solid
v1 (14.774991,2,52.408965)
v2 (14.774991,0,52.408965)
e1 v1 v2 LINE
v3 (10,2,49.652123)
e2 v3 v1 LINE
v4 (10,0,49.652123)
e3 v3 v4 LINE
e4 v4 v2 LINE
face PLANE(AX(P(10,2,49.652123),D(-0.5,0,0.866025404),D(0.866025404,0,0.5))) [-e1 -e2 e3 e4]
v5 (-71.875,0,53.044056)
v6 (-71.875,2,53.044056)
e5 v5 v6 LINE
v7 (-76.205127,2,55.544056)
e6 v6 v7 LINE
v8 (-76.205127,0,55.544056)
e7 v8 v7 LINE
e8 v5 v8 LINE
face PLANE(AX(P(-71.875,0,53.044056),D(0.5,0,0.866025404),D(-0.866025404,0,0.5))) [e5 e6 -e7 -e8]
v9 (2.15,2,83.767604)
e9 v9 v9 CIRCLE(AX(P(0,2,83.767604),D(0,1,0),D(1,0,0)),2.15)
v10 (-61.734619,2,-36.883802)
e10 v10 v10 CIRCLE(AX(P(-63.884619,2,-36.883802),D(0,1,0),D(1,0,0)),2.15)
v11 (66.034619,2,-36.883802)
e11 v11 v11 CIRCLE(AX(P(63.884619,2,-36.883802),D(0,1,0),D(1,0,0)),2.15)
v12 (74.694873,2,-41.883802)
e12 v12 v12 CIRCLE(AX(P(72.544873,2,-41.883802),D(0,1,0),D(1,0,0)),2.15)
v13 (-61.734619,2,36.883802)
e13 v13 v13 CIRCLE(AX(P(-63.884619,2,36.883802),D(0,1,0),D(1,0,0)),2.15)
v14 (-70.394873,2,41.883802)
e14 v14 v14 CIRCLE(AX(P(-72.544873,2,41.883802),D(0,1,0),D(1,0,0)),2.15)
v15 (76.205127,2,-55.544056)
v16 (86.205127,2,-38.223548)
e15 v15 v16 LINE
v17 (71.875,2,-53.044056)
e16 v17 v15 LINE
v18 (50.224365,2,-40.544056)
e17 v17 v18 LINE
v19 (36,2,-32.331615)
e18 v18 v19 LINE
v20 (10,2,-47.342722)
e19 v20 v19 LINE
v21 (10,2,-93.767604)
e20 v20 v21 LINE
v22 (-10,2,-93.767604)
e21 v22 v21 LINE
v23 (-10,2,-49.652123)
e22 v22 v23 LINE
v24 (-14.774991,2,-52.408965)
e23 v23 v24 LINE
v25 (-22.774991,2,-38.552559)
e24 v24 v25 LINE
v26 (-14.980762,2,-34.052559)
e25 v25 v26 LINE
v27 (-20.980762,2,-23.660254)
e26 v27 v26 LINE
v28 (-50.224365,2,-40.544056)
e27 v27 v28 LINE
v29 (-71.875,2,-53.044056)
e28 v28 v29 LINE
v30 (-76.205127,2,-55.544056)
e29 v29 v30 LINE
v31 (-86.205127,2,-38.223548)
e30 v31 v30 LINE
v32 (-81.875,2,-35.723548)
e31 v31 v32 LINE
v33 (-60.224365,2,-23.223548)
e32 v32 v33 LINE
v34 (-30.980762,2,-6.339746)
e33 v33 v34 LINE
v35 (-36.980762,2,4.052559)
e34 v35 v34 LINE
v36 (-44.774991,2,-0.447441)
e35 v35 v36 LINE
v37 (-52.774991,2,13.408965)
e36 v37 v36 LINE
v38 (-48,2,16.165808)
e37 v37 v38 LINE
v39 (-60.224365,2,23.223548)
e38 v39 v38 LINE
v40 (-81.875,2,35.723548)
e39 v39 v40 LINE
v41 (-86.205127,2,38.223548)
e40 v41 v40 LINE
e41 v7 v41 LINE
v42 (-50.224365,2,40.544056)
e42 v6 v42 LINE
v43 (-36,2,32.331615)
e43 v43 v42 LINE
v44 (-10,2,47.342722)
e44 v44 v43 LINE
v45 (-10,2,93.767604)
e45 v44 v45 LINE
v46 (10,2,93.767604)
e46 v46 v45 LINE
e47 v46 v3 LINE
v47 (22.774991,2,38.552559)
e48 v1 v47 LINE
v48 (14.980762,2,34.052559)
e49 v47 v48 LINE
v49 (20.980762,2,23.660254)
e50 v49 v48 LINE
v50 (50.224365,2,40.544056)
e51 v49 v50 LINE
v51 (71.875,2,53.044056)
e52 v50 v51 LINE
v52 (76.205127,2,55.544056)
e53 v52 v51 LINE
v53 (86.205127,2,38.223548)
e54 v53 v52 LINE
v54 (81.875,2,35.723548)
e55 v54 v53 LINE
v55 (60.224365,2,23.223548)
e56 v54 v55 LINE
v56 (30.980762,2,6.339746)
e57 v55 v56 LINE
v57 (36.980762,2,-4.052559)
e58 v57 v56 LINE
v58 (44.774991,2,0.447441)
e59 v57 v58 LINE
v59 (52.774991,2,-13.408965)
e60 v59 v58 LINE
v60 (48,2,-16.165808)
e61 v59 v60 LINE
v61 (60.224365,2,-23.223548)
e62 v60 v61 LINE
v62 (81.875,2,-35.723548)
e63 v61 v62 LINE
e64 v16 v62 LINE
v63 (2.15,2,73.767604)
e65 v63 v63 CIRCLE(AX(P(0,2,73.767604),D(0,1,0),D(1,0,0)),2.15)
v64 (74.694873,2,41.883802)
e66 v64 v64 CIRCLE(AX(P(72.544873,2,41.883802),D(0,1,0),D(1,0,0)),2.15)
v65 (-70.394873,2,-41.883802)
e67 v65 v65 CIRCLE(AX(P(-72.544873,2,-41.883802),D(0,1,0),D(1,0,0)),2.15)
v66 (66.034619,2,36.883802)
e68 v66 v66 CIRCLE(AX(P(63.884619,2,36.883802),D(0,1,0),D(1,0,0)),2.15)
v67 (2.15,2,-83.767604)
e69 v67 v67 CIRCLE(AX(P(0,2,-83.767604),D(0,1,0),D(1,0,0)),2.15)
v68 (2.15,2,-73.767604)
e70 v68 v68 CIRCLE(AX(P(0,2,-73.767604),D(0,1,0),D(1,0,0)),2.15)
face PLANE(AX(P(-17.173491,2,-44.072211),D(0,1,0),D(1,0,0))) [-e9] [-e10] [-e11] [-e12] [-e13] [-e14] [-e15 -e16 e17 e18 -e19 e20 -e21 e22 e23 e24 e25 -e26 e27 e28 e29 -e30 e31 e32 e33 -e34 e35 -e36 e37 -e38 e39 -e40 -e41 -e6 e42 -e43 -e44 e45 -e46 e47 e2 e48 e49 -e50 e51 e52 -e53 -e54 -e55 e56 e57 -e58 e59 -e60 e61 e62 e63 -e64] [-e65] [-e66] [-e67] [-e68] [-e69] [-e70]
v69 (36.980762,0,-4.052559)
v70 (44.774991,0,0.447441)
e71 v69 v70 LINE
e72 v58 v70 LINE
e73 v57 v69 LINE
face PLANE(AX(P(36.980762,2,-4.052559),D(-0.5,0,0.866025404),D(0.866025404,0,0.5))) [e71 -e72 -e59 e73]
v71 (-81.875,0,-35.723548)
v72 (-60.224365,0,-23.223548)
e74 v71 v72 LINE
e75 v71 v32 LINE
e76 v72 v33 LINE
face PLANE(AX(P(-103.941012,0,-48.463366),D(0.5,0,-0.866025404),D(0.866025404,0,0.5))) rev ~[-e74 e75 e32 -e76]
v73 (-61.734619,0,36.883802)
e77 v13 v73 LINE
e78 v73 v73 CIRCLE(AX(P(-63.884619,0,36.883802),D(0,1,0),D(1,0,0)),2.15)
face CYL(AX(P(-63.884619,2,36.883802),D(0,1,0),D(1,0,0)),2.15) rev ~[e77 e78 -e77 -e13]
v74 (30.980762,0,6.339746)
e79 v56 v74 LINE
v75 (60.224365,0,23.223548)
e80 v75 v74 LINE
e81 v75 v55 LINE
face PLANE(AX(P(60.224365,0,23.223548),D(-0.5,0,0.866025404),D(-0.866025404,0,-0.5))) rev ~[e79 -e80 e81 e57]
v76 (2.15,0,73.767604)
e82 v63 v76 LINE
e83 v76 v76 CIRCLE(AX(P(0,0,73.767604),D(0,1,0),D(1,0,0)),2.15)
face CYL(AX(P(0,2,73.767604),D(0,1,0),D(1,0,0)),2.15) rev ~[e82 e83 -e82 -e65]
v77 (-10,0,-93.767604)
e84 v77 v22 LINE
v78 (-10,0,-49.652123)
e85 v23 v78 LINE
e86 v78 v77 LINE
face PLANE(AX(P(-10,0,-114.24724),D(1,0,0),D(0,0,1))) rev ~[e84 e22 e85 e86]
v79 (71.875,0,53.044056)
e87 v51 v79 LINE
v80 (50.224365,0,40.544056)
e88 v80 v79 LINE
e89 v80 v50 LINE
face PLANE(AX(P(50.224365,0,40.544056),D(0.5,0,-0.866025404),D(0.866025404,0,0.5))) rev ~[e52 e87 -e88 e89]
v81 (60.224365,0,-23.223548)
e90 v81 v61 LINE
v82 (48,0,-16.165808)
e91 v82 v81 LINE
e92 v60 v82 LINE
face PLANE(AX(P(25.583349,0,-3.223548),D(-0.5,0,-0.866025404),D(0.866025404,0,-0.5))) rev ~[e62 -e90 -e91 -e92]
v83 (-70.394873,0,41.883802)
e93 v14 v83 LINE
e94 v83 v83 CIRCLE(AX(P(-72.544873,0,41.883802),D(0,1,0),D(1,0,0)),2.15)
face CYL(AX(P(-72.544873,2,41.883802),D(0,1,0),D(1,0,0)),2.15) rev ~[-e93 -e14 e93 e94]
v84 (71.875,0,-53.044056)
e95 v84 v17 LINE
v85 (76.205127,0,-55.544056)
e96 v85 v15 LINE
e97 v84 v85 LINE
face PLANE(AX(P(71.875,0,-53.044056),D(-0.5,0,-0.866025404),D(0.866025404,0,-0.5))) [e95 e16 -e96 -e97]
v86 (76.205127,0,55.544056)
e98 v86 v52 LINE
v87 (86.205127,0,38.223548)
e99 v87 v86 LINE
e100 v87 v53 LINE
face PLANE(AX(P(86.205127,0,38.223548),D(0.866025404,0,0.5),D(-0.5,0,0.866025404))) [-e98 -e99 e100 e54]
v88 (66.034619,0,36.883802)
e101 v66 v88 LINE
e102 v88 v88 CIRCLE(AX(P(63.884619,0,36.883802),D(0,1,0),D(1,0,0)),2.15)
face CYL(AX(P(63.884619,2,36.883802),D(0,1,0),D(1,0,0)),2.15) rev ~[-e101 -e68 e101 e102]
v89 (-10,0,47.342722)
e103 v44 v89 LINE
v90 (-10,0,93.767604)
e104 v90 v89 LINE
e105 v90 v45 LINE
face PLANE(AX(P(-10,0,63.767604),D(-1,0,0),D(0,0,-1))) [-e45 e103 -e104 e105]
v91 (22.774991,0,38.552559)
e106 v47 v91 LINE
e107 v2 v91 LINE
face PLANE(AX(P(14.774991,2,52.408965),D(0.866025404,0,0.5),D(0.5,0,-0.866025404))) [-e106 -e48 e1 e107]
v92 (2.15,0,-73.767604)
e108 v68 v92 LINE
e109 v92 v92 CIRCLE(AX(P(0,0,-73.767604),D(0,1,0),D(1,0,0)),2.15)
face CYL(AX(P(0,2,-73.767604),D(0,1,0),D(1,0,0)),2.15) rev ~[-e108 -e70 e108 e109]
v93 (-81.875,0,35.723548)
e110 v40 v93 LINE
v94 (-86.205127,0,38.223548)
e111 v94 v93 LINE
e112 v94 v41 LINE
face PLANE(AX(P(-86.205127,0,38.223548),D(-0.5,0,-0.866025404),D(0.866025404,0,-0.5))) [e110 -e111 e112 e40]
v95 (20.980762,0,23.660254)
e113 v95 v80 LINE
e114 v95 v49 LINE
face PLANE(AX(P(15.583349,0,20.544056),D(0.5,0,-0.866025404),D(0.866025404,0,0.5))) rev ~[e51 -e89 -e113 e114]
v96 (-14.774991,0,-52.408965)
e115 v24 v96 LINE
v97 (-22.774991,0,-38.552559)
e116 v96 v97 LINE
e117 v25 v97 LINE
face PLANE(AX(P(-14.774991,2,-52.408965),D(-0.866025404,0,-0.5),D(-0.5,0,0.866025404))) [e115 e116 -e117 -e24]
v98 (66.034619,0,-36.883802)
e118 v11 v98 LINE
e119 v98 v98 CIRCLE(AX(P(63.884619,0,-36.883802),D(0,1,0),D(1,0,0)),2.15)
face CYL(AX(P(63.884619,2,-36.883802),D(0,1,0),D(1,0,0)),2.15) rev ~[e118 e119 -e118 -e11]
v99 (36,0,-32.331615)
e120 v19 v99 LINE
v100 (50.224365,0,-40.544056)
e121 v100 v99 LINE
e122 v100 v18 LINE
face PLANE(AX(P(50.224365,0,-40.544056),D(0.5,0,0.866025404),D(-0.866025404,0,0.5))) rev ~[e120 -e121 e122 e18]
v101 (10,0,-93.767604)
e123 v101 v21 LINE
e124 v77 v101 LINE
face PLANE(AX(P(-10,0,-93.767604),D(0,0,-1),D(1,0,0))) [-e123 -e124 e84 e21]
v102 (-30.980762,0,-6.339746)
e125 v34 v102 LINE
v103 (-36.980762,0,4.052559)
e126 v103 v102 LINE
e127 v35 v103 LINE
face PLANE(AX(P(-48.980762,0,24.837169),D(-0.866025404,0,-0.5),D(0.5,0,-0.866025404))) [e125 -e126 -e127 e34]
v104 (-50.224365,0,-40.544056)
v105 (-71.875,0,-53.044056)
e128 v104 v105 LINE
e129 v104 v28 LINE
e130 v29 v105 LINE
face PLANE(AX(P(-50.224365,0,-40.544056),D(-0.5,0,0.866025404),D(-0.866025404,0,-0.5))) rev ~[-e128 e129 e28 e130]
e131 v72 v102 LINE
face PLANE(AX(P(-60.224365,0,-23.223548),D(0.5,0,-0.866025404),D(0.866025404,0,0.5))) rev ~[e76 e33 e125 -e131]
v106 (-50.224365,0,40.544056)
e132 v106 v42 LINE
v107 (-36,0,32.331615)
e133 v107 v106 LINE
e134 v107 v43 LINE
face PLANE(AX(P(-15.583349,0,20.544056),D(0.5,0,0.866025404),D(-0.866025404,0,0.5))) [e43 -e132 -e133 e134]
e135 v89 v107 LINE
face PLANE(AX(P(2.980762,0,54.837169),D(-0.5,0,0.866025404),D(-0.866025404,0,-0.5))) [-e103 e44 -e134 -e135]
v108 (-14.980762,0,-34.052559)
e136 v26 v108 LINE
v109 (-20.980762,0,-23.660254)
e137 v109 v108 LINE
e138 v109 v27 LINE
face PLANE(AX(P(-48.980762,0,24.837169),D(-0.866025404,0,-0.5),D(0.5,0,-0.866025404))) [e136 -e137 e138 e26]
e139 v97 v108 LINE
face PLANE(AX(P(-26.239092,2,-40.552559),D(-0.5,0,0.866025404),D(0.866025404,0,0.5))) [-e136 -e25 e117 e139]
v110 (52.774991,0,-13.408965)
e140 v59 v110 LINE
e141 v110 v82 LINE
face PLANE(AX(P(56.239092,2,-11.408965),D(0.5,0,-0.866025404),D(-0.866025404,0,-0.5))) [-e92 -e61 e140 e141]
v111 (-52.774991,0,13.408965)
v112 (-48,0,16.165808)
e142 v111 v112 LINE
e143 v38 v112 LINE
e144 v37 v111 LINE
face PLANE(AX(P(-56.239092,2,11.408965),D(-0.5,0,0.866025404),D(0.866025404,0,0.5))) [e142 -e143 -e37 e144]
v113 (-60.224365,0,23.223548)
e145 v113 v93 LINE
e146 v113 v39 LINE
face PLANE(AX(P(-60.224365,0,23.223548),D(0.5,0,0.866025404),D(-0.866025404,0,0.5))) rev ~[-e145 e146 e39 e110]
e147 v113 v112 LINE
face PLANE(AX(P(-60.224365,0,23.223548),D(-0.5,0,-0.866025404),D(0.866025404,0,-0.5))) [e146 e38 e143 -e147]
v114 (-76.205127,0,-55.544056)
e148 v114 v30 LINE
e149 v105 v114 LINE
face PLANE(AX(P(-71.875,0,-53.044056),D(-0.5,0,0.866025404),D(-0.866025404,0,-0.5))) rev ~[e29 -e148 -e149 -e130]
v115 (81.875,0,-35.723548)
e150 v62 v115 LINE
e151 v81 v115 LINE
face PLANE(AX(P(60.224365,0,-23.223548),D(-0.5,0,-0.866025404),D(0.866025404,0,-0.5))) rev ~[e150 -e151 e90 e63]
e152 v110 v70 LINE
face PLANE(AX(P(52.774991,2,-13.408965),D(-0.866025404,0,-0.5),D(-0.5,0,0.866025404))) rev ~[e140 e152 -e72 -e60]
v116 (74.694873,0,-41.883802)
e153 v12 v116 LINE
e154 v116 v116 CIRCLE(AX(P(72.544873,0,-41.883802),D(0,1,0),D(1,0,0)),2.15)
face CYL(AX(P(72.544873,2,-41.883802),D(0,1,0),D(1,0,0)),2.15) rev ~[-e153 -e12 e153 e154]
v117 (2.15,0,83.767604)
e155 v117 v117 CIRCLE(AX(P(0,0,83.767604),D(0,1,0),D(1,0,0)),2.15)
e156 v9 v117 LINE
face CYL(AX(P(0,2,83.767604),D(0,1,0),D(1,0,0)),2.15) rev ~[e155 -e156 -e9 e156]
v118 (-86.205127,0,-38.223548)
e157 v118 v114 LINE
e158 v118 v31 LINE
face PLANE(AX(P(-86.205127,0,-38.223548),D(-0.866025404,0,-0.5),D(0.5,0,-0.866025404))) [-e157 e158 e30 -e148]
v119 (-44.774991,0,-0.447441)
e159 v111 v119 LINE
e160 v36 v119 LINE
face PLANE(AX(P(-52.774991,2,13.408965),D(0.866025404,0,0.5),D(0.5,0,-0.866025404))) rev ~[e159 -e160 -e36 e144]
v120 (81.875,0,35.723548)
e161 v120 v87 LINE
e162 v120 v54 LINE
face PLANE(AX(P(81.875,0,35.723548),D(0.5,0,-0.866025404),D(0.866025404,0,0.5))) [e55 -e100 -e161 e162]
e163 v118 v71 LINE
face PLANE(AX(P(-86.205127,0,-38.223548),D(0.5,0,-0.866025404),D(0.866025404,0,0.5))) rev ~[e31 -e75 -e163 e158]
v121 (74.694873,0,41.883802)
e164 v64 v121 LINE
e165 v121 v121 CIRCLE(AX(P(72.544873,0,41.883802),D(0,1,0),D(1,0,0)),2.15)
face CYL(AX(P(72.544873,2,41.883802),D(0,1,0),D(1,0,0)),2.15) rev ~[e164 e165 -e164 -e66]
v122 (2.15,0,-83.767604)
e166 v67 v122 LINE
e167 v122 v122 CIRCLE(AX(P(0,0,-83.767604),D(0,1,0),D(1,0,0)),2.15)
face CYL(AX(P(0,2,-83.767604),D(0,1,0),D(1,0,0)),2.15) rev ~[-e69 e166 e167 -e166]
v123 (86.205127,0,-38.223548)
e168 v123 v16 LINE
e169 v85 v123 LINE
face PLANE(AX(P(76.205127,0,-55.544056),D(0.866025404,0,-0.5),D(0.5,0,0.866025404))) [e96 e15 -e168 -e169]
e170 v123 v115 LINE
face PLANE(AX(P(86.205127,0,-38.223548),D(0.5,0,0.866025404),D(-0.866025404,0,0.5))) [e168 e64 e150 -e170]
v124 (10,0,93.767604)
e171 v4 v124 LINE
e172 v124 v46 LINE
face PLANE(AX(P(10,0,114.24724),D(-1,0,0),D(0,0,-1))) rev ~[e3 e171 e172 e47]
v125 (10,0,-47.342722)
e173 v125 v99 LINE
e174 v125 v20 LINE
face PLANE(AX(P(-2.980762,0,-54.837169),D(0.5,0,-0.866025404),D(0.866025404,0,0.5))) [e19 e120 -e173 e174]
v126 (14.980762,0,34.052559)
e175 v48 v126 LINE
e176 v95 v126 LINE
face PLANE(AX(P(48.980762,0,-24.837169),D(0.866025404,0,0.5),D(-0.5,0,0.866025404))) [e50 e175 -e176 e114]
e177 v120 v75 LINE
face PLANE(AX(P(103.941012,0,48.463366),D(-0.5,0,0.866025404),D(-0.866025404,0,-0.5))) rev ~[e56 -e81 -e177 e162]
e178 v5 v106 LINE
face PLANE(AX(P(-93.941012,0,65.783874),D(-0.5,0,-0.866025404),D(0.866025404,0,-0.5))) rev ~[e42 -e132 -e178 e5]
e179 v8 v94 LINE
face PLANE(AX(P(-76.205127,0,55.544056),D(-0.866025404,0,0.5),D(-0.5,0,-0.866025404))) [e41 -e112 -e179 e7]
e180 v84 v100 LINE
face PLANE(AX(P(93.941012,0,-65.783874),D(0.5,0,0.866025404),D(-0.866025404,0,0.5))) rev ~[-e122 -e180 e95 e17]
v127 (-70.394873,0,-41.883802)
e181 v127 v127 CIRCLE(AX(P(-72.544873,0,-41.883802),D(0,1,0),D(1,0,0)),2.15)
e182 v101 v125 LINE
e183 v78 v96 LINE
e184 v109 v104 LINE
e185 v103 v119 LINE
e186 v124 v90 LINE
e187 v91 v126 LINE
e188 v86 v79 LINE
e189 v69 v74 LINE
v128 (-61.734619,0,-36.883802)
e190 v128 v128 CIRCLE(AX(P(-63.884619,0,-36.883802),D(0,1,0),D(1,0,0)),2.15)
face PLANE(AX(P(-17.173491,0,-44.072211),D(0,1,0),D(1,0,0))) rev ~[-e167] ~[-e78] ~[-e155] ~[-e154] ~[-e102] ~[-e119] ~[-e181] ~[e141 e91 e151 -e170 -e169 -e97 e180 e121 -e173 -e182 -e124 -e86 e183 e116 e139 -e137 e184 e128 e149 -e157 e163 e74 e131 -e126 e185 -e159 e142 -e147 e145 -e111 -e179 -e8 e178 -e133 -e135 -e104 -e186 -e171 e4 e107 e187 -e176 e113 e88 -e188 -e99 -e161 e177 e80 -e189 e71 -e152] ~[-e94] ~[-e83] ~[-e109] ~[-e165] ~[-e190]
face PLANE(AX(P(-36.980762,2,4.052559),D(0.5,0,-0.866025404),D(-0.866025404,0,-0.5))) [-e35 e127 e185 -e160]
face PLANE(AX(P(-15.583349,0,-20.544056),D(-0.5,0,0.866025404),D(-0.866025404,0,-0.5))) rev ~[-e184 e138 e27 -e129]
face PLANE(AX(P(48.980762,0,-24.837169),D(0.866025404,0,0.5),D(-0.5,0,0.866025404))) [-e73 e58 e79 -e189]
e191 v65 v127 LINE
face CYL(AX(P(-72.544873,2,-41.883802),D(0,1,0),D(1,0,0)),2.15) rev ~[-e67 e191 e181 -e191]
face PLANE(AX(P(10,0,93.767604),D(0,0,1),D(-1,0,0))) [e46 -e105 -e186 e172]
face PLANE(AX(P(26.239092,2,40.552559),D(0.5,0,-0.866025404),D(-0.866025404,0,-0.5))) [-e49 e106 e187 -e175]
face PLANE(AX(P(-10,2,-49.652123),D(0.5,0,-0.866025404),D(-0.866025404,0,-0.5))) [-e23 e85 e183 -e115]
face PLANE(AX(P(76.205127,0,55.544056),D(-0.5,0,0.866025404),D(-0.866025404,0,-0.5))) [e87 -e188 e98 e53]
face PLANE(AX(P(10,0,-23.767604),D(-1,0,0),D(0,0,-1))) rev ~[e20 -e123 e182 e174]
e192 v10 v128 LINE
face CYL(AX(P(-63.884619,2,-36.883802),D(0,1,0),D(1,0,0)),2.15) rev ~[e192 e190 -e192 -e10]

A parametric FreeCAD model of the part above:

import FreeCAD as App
import Part
import Sketcher

V = App.Vector
Q = App.Units.Quantity

doc = App.newDocument("Part")
body = doc.addObject("PartDesign::Body", "Body")

# Sketch on XZ plane
sketch1 = doc.addObject("Sketcher::SketchObject", "Sketch")
body.addObject(sketch1)
sketch1.AttachmentSupport = (doc.XZ_Plane, [""])
sketch1.MapMode = "FlatFace"
sketch1.addGeometry([
    Part.LineSegment(V(102, 0, 0), V(51, -89, 0)),  # 0
    Part.LineSegment(V(51, -89, 0), V(-51, -89, 0)),  # 1
    Part.LineSegment(V(-51, -89, 0), V(-102, 0, 0)),  # 2
    Part.LineSegment(V(-102, 0, 0), V(-51, 89, 0)),  # 3
    Part.LineSegment(V(-51, 89, 0), V(51, 89, 0)),  # 4
    Part.LineSegment(V(51, 89, 0), V(102, 0, 0)),  # 5
    Part.LineSegment(V(-37, -64, 0), V(-10, -64, 0)),  # 6
    Part.LineSegment(V(-10, -64, 0), V(-10, -46, 0)),  # 7
    Part.LineSegment(V(-10, -46, 0), V(-30, -46, 0)),  # 8
    Part.LineSegment(V(-30, -46, 0), V(-30, 46, 0)),  # 9
    Part.LineSegment(V(-30, 46, 0), V(-10, 46, 0)),  # 10
    Part.LineSegment(V(-10, 46, 0), V(-10, 64, 0)),  # 11
    Part.LineSegment(V(-10, 64, 0), V(-37, 64, 0)),  # 12
    Part.LineSegment(V(-37, 64, 0), V(-74, 0, 0)),  # 13
    Part.LineSegment(V(-74, 0, 0), V(-37, -64, 0)),  # 14
    Part.LineSegment(V(37, -64, 0), V(74, 0, 0)),  # 15
    Part.LineSegment(V(74, 0, 0), V(37, 64, 0)),  # 16
    Part.LineSegment(V(37, 64, 0), V(10, 64, 0)),  # 17
    Part.LineSegment(V(10, 64, 0), V(10, 46, 0)),  # 18
    Part.LineSegment(V(10, 46, 0), V(30, 46, 0)),  # 19
    Part.LineSegment(V(30, 46, 0), V(30, -46, 0)),  # 20
    Part.LineSegment(V(30, -46, 0), V(10, -46, 0)),  # 21
    Part.LineSegment(V(10, -46, 0), V(10, -64, 0)),  # 22
    Part.LineSegment(V(10, -64, 0), V(37, -64, 0)),  # 23
], False)
sketch1.addConstraint([
    Sketcher.Constraint("Coincident", 0, 2, 1, 1),
    Sketcher.Constraint("Coincident", 1, 2, 2, 1),
    Sketcher.Constraint("Coincident", 2, 2, 3, 1),
    Sketcher.Constraint("Coincident", 3, 2, 4, 1),
    Sketcher.Constraint("Coincident", 4, 2, 5, 1),
    Sketcher.Constraint("Coincident", 5, 2, 0, 1),
    Sketcher.Constraint("Coincident", 6, 2, 7, 1),
    Sketcher.Constraint("Coincident", 7, 2, 8, 1),
    Sketcher.Constraint("Coincident", 8, 2, 9, 1),
    Sketcher.Constraint("Coincident", 9, 2, 10, 1),
    Sketcher.Constraint("Coincident", 10, 2, 11, 1),
    Sketcher.Constraint("Coincident", 11, 2, 12, 1),
    Sketcher.Constraint("Coincident", 12, 2, 13, 1),
    Sketcher.Constraint("Coincident", 13, 2, 14, 1),
    Sketcher.Constraint("Coincident", 14, 2, 6, 1),
    Sketcher.Constraint("Coincident", 15, 2, 16, 1),
    Sketcher.Constraint("Coincident", 16, 2, 17, 1),
    Sketcher.Constraint("Coincident", 17, 2, 18, 1),
    Sketcher.Constraint("Coincident", 18, 2, 19, 1),
    Sketcher.Constraint("Coincident", 19, 2, 20, 1),
    Sketcher.Constraint("Coincident", 20, 2, 21, 1),
    Sketcher.Constraint("Coincident", 21, 2, 22, 1),
    Sketcher.Constraint("Coincident", 22, 2, 23, 1),
    Sketcher.Constraint("Coincident", 23, 2, 15, 1),
    Sketcher.Constraint("Horizontal", 1),
    Sketcher.Constraint("Horizontal", 4),
    Sketcher.Constraint("Horizontal", 6),
    Sketcher.Constraint("Vertical", 7),
    Sketcher.Constraint("Horizontal", 8),
    Sketcher.Constraint("Vertical", 9),
    Sketcher.Constraint("Horizontal", 10),
    Sketcher.Constraint("Vertical", 11),
    Sketcher.Constraint("Horizontal", 12),
    Sketcher.Constraint("Horizontal", 17),
    Sketcher.Constraint("Vertical", 18),
    Sketcher.Constraint("Horizontal", 19),
    Sketcher.Constraint("Vertical", 20),
    Sketcher.Constraint("Horizontal", 21),
    Sketcher.Constraint("Vertical", 22),
    Sketcher.Constraint("Horizontal", 23),
    Sketcher.Constraint("Symmetric", 0, 2, 3, 2, -1, 1),
    Sketcher.Constraint("Symmetric", 2, 2, 5, 2, -1, 1),
    Sketcher.Constraint("Symmetric", 13, 2, 15, 2, -1, 1),
    Sketcher.Constraint("Symmetric", 14, 2, 16, 2, -1, 1),
    Sketcher.Constraint("Symmetric", 7, 2, 18, 2, -1, 1),
    Sketcher.Constraint("Symmetric", 9, 2, 20, 2, -1, 1),
    Sketcher.Constraint("Symmetric", 11, 2, 22, 2, -1, 1),
    Sketcher.Constraint("Symmetric", 12, 2, 16, 2, -2),
    Sketcher.Constraint("Symmetric", 10, 2, 18, 2, -2),
    Sketcher.Constraint("PointOnObject", 2, 2, -1),
    Sketcher.Constraint("PointOnObject", 13, 2, -1),
    Sketcher.Constraint("Parallel", 2, 5),
    Sketcher.Constraint("Parallel", 3, 13),
    Sketcher.Constraint("Parallel", 5, 14),
    Sketcher.Constraint("Parallel", 13, 15),
    Sketcher.Constraint("DistanceX", 8, 2, 8, 1, 20.0),
    Sketcher.Constraint("DistanceY", 7, 1, 7, 2, 18.0),
    Sketcher.Constraint("Angle", 0, Q("-120 deg")),
    Sketcher.Constraint("DistanceX", 1, 2, 1, 1, 102.5),
    Sketcher.Constraint("DistanceX", 6, 2, -1, 1, 10.0),
    Sketcher.Constraint("DistanceX", 2, 2, 5, 2, 205.0),
    Sketcher.Constraint("DistanceY", 1, 2, 6, 2, 25.0),
    Sketcher.Constraint("DistanceX", 6, 1, 6, 2, 26.816243),
])
pad1 = doc.addObject("PartDesign::Pad", "Pad")
body.addObject(pad1)
pad1.Profile = sketch1
pad1.Length = 2
pad1.Reversed = True

# Sketch on XZ plane
sketch2 = doc.addObject("Sketcher::SketchObject", "Sketch001")
body.addObject(sketch2)
sketch2.AttachmentSupport = (doc.XZ_Plane, [""])
sketch2.MapMode = "FlatFace"
sketch2.AttachmentOffset = App.Placement(V(0, 0, -2), App.Rotation())
sketch2.addGeometry([
    Part.Circle(V(-72.5, 41.9, 0), V(0, 0, 1), 2.1),  # 0
    Part.Circle(V(-63.9, 36.9, 0), V(0, 0, 1), 2.1),  # 1
    Part.Circle(V(-72.5, -41.9, 0), V(0, 0, 1), 2.1),  # 2
    Part.Circle(V(-63.9, -36.9, 0), V(0, 0, 1), 2.1),  # 3
    Part.Circle(V(0, -83.8, 0), V(0, 0, 1), 2.1),  # 4
    Part.Circle(V(0, -73.8, 0), V(0, 0, 1), 2.1),  # 5
    Part.Circle(V(72.5, -41.9, 0), V(0, 0, 1), 2.1),  # 6
    Part.Circle(V(63.9, -36.9, 0), V(0, 0, 1), 2.1),  # 7
    Part.Circle(V(72.5, 41.9, 0), V(0, 0, 1), 2.1),  # 8
    Part.Circle(V(63.9, 36.9, 0), V(0, 0, 1), 2.1),  # 9
    Part.Circle(V(0, 83.8, 0), V(0, 0, 1), 2.1),  # 10
    Part.Circle(V(0, 73.8, 0), V(0, 0, 1), 2.1),  # 11
], False)
sketch2.addConstraint([
    Sketcher.Constraint("Equal", 0, 1),
    Sketcher.Constraint("Equal", 1, 2),
    Sketcher.Constraint("Equal", 2, 3),
    Sketcher.Constraint("Equal", 3, 4),
    Sketcher.Constraint("Equal", 4, 5),
    Sketcher.Constraint("Equal", 5, 6),
    Sketcher.Constraint("Equal", 6, 7),
    Sketcher.Constraint("Equal", 7, 8),
    Sketcher.Constraint("Equal", 8, 9),
    Sketcher.Constraint("Equal", 9, 10),
    Sketcher.Constraint("Equal", 10, 11),
    Sketcher.Constraint("Symmetric", 0, 3, 6, 3, -1, 1),
    Sketcher.Constraint("Symmetric", 1, 3, 7, 3, -1, 1),
    Sketcher.Constraint("Symmetric", 2, 3, 8, 3, -1, 1),
    Sketcher.Constraint("Symmetric", 3, 3, 9, 3, -1, 1),
    Sketcher.Constraint("Symmetric", 4, 3, 10, 3, -1, 1),
    Sketcher.Constraint("Symmetric", 5, 3, 11, 3, -1, 1),
    Sketcher.Constraint("Symmetric", 2, 3, 6, 3, -2),
    Sketcher.Constraint("Symmetric", 3, 3, 7, 3, -2),
    Sketcher.Constraint("PointOnObject", 4, 3, -2),
    Sketcher.Constraint("PointOnObject", 5, 3, -2),
    Sketcher.Constraint("Diameter", 0, 4.3),
    Sketcher.Constraint("DistanceY", 1, 3, 0, 3, 5.0),
    Sketcher.Constraint("DistanceY", 4, 3, 5, 3, 10.0),
    Sketcher.Constraint("DistanceY", -1, 1, 0, 3, 41.883802),
    Sketcher.Constraint("DistanceY", 4, 3, 3, 3, 46.883802),
    Sketcher.Constraint("DistanceX", 1, 3, -1, 1, 63.884619),
    Sketcher.Constraint("DistanceX", 3, 3, 6, 3, 136.429492),
])
pocket1 = doc.addObject("PartDesign::Pocket", "Pocket")
body.addObject(pocket1)
pocket1.Profile = sketch2
pocket1.Length = 10
pocket1.Reversed = True

# Sketch on XZ plane
sketch3 = doc.addObject("Sketcher::SketchObject", "Sketch002")
body.addObject(sketch3)
sketch3.AttachmentSupport = (doc.XZ_Plane, [""])
sketch3.MapMode = "FlatFace"
sketch3.addGeometry([
    Part.LineSegment(V(74, 0, 0), V(37, 64, 0)),  # 0
    Part.LineSegment(V(37, 64, 0), V(-37, 64, 0)),  # 1
    Part.LineSegment(V(-37, 64, 0), V(-74, 0, 0)),  # 2
    Part.LineSegment(V(-74, 0, 0), V(-37, -64, 0)),  # 3
    Part.LineSegment(V(-37, -64, 0), V(37, -64, 0)),  # 4
    Part.LineSegment(V(37, -64, 0), V(74, 0, 0)),  # 5
], False)
sketch3.addConstraint([
    Sketcher.Constraint("Coincident", 0, 2, 1, 1),
    Sketcher.Constraint("Coincident", 1, 2, 2, 1),
    Sketcher.Constraint("Coincident", 2, 2, 3, 1),
    Sketcher.Constraint("Coincident", 3, 2, 4, 1),
    Sketcher.Constraint("Coincident", 4, 2, 5, 1),
    Sketcher.Constraint("Coincident", 5, 2, 0, 1),
    Sketcher.Constraint("Horizontal", 1),
    Sketcher.Constraint("Horizontal", 4),
    Sketcher.Constraint("Symmetric", 0, 2, 3, 2, -1, 1),
    Sketcher.Constraint("Symmetric", 2, 2, 5, 2, -1, 1),
    Sketcher.Constraint("PointOnObject", 2, 2, -1),
    Sketcher.Constraint("Parallel", 2, 5),
    Sketcher.Constraint("Vertical", 1, 2, 3, 2),
    Sketcher.Constraint("Angle", 0, Q("120 deg")),
    Sketcher.Constraint("DistanceX", 1, 2, 1, 1, 73.632487),
    Sketcher.Constraint("DistanceX", 2, 2, 0, 2, 110.44873),
])
pocket2 = doc.addObject("PartDesign::Pocket", "Pocket001")
body.addObject(pocket2)
pocket2.Profile = sketch3
pocket2.Length = 30
body2 = doc.addObject("PartDesign::Body", "Body001")

# Sketch on XZ plane
sketch4 = doc.addObject("Sketcher::SketchObject", "Sketch003")
body2.addObject(sketch4)
sketch4.AttachmentSupport = (doc.getObject("XZ_Plane001"), [""])
sketch4.MapMode = "FlatFace"
sketch4.addGeometry([
    Part.LineSegment(V(3, 55, 0), V(-49, 25, 0)),
    Part.LineSegment(V(-49, 25, 0), V(-3, -55, 0)),
    Part.LineSegment(V(-3, -55, 0), V(49, -25, 0)),
    Part.LineSegment(V(49, -25, 0), V(3, 55, 0)),
], False)
sketch4.addConstraint([
    Sketcher.Constraint("Coincident", 0, 2, 1, 1),
    Sketcher.Constraint("Coincident", 1, 2, 2, 1),
    Sketcher.Constraint("Coincident", 2, 2, 3, 1),
    Sketcher.Constraint("Coincident", 3, 2, 0, 1),
    Sketcher.Constraint("Symmetric", 0, 2, 2, 2, -1, 1),
    Sketcher.Constraint("Symmetric", 1, 2, 3, 2, -1, 1),
    Sketcher.Constraint("Perpendicular", 0, 1),
    Sketcher.Constraint("Angle", 0, Q("-150 deg")),
    Sketcher.Constraint("Distance", 0, 60.0),
    Sketcher.Constraint("Distance", 1, 92.0),
])
pad2 = doc.addObject("PartDesign::Pad", "Pad001")
body2.addObject(pad2)
pad2.Profile = sketch4
pad2.Length = 2
pad2.Reversed = True
body.AllowCompound = True
doc.recompute()

boolean = doc.addObject("PartDesign::Boolean", "Boolean")
body.addObject(boolean)
boolean.Type = "Fuse"
boolean.addObjects([body2])

# Sketch on XZ plane
sketch5 = doc.addObject("Sketcher::SketchObject", "Sketch004")
body.addObject(sketch5)
sketch5.AttachmentSupport = (doc.XZ_Plane, [""])
sketch5.MapMode = "FlatFace"
sketch5.addGeometry([
    Part.LineSegment(V(-60, 23, 0), V(-26, 3, 0)),  # 0
    Part.LineSegment(V(-26, 3, 0), V(-16, 21, 0)),  # 1
    Part.LineSegment(V(-16, 21, 0), V(-50, 41, 0)),  # 2
    Part.LineSegment(V(-50, 41, 0), V(-60, 23, 0)),  # 3
    Part.LineSegment(V(10, 24, 0), V(10, 64, 0)),  # 4
    Part.LineSegment(V(10, 64, 0), V(-10, 64, 0)),  # 5
    Part.LineSegment(V(-10, 64, 0), V(-10, 24, 0)),  # 6
    Part.LineSegment(V(-10, 24, 0), V(10, 24, 0)),  # 7
    Part.LineSegment(V(26, 3, 0), V(60, 23, 0)),  # 8
    Part.LineSegment(V(60, 23, 0), V(50, 41, 0)),  # 9
    Part.LineSegment(V(50, 41, 0), V(16, 21, 0)),  # 10
    Part.LineSegment(V(16, 21, 0), V(26, 3, 0)),  # 11
    Part.LineSegment(V(16, -21, 0), V(50, -41, 0)),  # 12
    Part.LineSegment(V(50, -41, 0), V(60, -23, 0)),  # 13
    Part.LineSegment(V(60, -23, 0), V(26, -3, 0)),  # 14
    Part.LineSegment(V(26, -3, 0), V(16, -21, 0)),  # 15
    Part.LineSegment(V(10, -64, 0), V(10, -24, 0)),  # 16
    Part.LineSegment(V(10, -24, 0), V(-10, -24, 0)),  # 17
    Part.LineSegment(V(-10, -24, 0), V(-10, -64, 0)),  # 18
    Part.LineSegment(V(-10, -64, 0), V(10, -64, 0)),  # 19
    Part.LineSegment(V(-26, -3, 0), V(-60, -23, 0)),  # 20
    Part.LineSegment(V(-60, -23, 0), V(-50, -41, 0)),  # 21
    Part.LineSegment(V(-50, -41, 0), V(-16, -21, 0)),  # 22
    Part.LineSegment(V(-16, -21, 0), V(-26, -3, 0)),  # 23
], False)
sketch5.addConstraint([
    Sketcher.Constraint("Coincident", 0, 2, 1, 1),
    Sketcher.Constraint("Coincident", 1, 2, 2, 1),
    Sketcher.Constraint("Coincident", 2, 2, 3, 1),
    Sketcher.Constraint("Coincident", 3, 2, 0, 1),
    Sketcher.Constraint("Coincident", 4, 2, 5, 1),
    Sketcher.Constraint("Coincident", 5, 2, 6, 1),
    Sketcher.Constraint("Coincident", 6, 2, 7, 1),
    Sketcher.Constraint("Coincident", 7, 2, 4, 1),
    Sketcher.Constraint("Coincident", 8, 2, 9, 1),
    Sketcher.Constraint("Coincident", 9, 2, 10, 1),
    Sketcher.Constraint("Coincident", 10, 2, 11, 1),
    Sketcher.Constraint("Coincident", 11, 2, 8, 1),
    Sketcher.Constraint("Coincident", 12, 2, 13, 1),
    Sketcher.Constraint("Coincident", 13, 2, 14, 1),
    Sketcher.Constraint("Coincident", 14, 2, 15, 1),
    Sketcher.Constraint("Coincident", 15, 2, 12, 1),
    Sketcher.Constraint("Coincident", 16, 2, 17, 1),
    Sketcher.Constraint("Coincident", 17, 2, 18, 1),
    Sketcher.Constraint("Coincident", 18, 2, 19, 1),
    Sketcher.Constraint("Coincident", 19, 2, 16, 1),
    Sketcher.Constraint("Coincident", 20, 2, 21, 1),
    Sketcher.Constraint("Coincident", 21, 2, 22, 1),
    Sketcher.Constraint("Coincident", 22, 2, 23, 1),
    Sketcher.Constraint("Coincident", 23, 2, 20, 1),
    Sketcher.Constraint("Vertical", 4),
    Sketcher.Constraint("Horizontal", 5),
    Sketcher.Constraint("Vertical", 6),
    Sketcher.Constraint("Horizontal", 7),
    Sketcher.Constraint("Vertical", 16),
    Sketcher.Constraint("Horizontal", 17),
    Sketcher.Constraint("Vertical", 18),
    Sketcher.Constraint("Horizontal", 19),
    Sketcher.Constraint("Symmetric", 2, 2, 12, 2, -1, 1),
    Sketcher.Constraint("Symmetric", 3, 2, 13, 2, -1, 1),
    Sketcher.Constraint("Symmetric", 0, 2, 14, 2, -1, 1),
    Sketcher.Constraint("Symmetric", 1, 2, 15, 2, -1, 1),
    Sketcher.Constraint("Symmetric", 6, 2, 16, 2, -1, 1),
    Sketcher.Constraint("Symmetric", 4, 2, 18, 2, -1, 1),
    Sketcher.Constraint("Symmetric", 8, 2, 20, 2, -1, 1),
    Sketcher.Constraint("Symmetric", 9, 2, 21, 2, -1, 1),
    Sketcher.Constraint("Symmetric", 10, 2, 22, 2, -1, 1),
    Sketcher.Constraint("Symmetric", 11, 2, 23, 2, -1, 1),
    Sketcher.Constraint("Symmetric", 3, 2, 8, 2, -2),
    Sketcher.Constraint("Symmetric", 2, 2, 9, 2, -2),
    Sketcher.Constraint("Symmetric", 1, 2, 10, 2, -2),
    Sketcher.Constraint("Symmetric", 0, 2, 11, 2, -2),
    Sketcher.Constraint("Perpendicular", 0, 1),
    Sketcher.Constraint("Perpendicular", 1, 2),
    Sketcher.Constraint("Perpendicular", 2, 3),
    Sketcher.Constraint("Vertical", 7, 2, 16, 2),
    Sketcher.Constraint("DistanceX", 5, 2, 5, 1, 20.0),
    Sketcher.Constraint("DistanceY", 4, 1, 4, 2, 40.0),
    Sketcher.Constraint("Angle", 0, Q("-30 deg")),
    Sketcher.Constraint("Distance", 0, 40.0),
    Sketcher.Constraint("Distance", 1, 20.0),
    Sketcher.Constraint("DistanceX", 0, 2, -1, 1, 25.583349),
    Sketcher.Constraint("DistanceY", 12, 2, 10, 2, 61.088112),
    Sketcher.Constraint("DistanceY", 12, 2, 7, 2, 64.31166),
])
pad3 = doc.addObject("PartDesign::Pad", "Pad002")
body.addObject(pad3)
pad3.Profile = sketch5
pad3.Length = 2
pad3.Reversed = True

# Sketch on XZ plane
sketch6 = doc.addObject("Sketcher::SketchObject", "Sketch005")
body.addObject(sketch6)
sketch6.AttachmentSupport = (doc.XZ_Plane, [""])
sketch6.MapMode = "FlatFace"
sketch6.addGeometry([
    Part.LineSegment(V(-60, 23, 0), V(-98, 45, 0)),  # 0
    Part.LineSegment(V(-98, 45, 0), V(-122, 0, 0)),  # 1
    Part.LineSegment(V(-122, 0, 0), V(-104, -48, 0)),  # 2
    Part.LineSegment(V(-104, -48, 0), V(-60, -23, 0)),  # 3
    Part.LineSegment(V(-60, -23, 0), V(-60, 23, 0)),  # 4
    Part.LineSegment(V(-10, 108, 0), V(-61, 105, 0)),  # 5
    Part.LineSegment(V(-61, 105, 0), V(-94, 66, 0)),  # 6
    Part.LineSegment(V(-94, 66, 0), V(-50, 41, 0)),  # 7
    Part.LineSegment(V(-50, 41, 0), V(-10, 64, 0)),  # 8
    Part.LineSegment(V(-10, 64, 0), V(-10, 108, 0)),  # 9
    Part.LineSegment(V(88, 62, 0), V(61, 105, 0)),  # 10
    Part.LineSegment(V(61, 105, 0), V(10, 114, 0)),  # 11
    Part.LineSegment(V(10, 114, 0), V(10, 64, 0)),  # 12
    Part.LineSegment(V(10, 64, 0), V(50, 41, 0)),  # 13
    Part.LineSegment(V(50, 41, 0), V(88, 62, 0)),  # 14
    Part.LineSegment(V(98, -45, 0), V(122, 0, 0)),  # 15
    Part.LineSegment(V(122, 0, 0), V(104, 48, 0)),  # 16
    Part.LineSegment(V(104, 48, 0), V(60, 23, 0)),  # 17
    Part.LineSegment(V(60, 23, 0), V(60, -23, 0)),  # 18
    Part.LineSegment(V(60, -23, 0), V(98, -45, 0)),  # 19
    Part.LineSegment(V(10, -108, 0), V(61, -105, 0)),  # 20
    Part.LineSegment(V(61, -105, 0), V(94, -66, 0)),  # 21
    Part.LineSegment(V(94, -66, 0), V(50, -41, 0)),  # 22
    Part.LineSegment(V(50, -41, 0), V(10, -64, 0)),  # 23
    Part.LineSegment(V(10, -64, 0), V(10, -108, 0)),  # 24
    Part.LineSegment(V(-88, -62, 0), V(-61, -105, 0)),  # 25
    Part.LineSegment(V(-61, -105, 0), V(-10, -114, 0)),  # 26
    Part.LineSegment(V(-10, -114, 0), V(-10, -64, 0)),  # 27
    Part.LineSegment(V(-10, -64, 0), V(-50, -41, 0)),  # 28
    Part.LineSegment(V(-50, -41, 0), V(-88, -62, 0)),  # 29
], False)
sketch6.addConstraint([
    Sketcher.Constraint("Coincident", 0, 2, 1, 1),
    Sketcher.Constraint("Coincident", 1, 2, 2, 1),
    Sketcher.Constraint("Coincident", 2, 2, 3, 1),
    Sketcher.Constraint("Coincident", 3, 2, 4, 1),
    Sketcher.Constraint("Coincident", 4, 2, 0, 1),
    Sketcher.Constraint("Coincident", 5, 2, 6, 1),
    Sketcher.Constraint("Coincident", 6, 2, 7, 1),
    Sketcher.Constraint("Coincident", 7, 2, 8, 1),
    Sketcher.Constraint("Coincident", 8, 2, 9, 1),
    Sketcher.Constraint("Coincident", 9, 2, 5, 1),
    Sketcher.Constraint("Coincident", 10, 2, 11, 1),
    Sketcher.Constraint("Coincident", 11, 2, 12, 1),
    Sketcher.Constraint("Coincident", 12, 2, 13, 1),
    Sketcher.Constraint("Coincident", 13, 2, 14, 1),
    Sketcher.Constraint("Coincident", 14, 2, 10, 1),
    Sketcher.Constraint("Coincident", 15, 2, 16, 1),
    Sketcher.Constraint("Coincident", 16, 2, 17, 1),
    Sketcher.Constraint("Coincident", 17, 2, 18, 1),
    Sketcher.Constraint("Coincident", 18, 2, 19, 1),
    Sketcher.Constraint("Coincident", 19, 2, 15, 1),
    Sketcher.Constraint("Coincident", 20, 2, 21, 1),
    Sketcher.Constraint("Coincident", 21, 2, 22, 1),
    Sketcher.Constraint("Coincident", 22, 2, 23, 1),
    Sketcher.Constraint("Coincident", 23, 2, 24, 1),
    Sketcher.Constraint("Coincident", 24, 2, 20, 1),
    Sketcher.Constraint("Coincident", 25, 2, 26, 1),
    Sketcher.Constraint("Coincident", 26, 2, 27, 1),
    Sketcher.Constraint("Coincident", 27, 2, 28, 1),
    Sketcher.Constraint("Coincident", 28, 2, 29, 1),
    Sketcher.Constraint("Coincident", 29, 2, 25, 1),
    Sketcher.Constraint("Vertical", 4),
    Sketcher.Constraint("Vertical", 9),
    Sketcher.Constraint("Vertical", 12),
    Sketcher.Constraint("Vertical", 18),
    Sketcher.Constraint("Vertical", 24),
    Sketcher.Constraint("Vertical", 27),
    Sketcher.Constraint("Symmetric", 1, 2, 15, 2, -1, 1),
    Sketcher.Constraint("Symmetric", 2, 2, 16, 2, -1, 1),
    Sketcher.Constraint("Symmetric", 3, 2, 17, 2, -1, 1),
    Sketcher.Constraint("Symmetric", 0, 2, 19, 2, -1, 1),
    Sketcher.Constraint("Symmetric", 5, 2, 20, 2, -1, 1),
    Sketcher.Constraint("Symmetric", 6, 2, 21, 2, -1, 1),
    Sketcher.Constraint("Symmetric", 7, 2, 22, 2, -1, 1),
    Sketcher.Constraint("Symmetric", 8, 2, 23, 2, -1, 1),
    Sketcher.Constraint("Symmetric", 10, 2, 25, 2, -1, 1),
    Sketcher.Constraint("Symmetric", 11, 2, 26, 2, -1, 1),
    Sketcher.Constraint("Symmetric", 13, 2, 28, 2, -1, 1),
    Sketcher.Constraint("Symmetric", 14, 2, 29, 2, -1, 1),
    Sketcher.Constraint("Symmetric", 5, 2, 10, 2, -2),
    Sketcher.Constraint("Symmetric", 8, 2, 12, 2, -2),
    Sketcher.Constraint("Symmetric", 7, 2, 13, 2, -2),
    Sketcher.Constraint("PointOnObject", 1, 2, -1),
    Sketcher.Constraint("Parallel", 0, 7),
    Sketcher.Constraint("Parallel", 3, 8),
    Sketcher.Constraint("Parallel", 7, 13),
    Sketcher.Constraint("Parallel", 8, 14),
    Sketcher.Constraint("Parallel", 13, 19),
    Sketcher.Constraint("Parallel", 5, 20),
    Sketcher.Constraint("Parallel", 22, 28),
    Sketcher.Constraint("Horizontal", 4, 2, 17, 2),
    Sketcher.Constraint("Equal", 1, 5),
    Sketcher.Constraint("Equal", 2, 6),
    Sketcher.Constraint("Equal", 3, 7),
    Sketcher.Constraint("Equal", 5, 10),
    Sketcher.Constraint("Equal", 6, 11),
    Sketcher.Constraint("Equal", 0, 14),
    Sketcher.Constraint("Angle", 0, Q("150 deg")),
    Sketcher.Constraint("DistanceX", 8, 2, -1, 1, 10.0),
    Sketcher.Constraint("DistanceX", 4, 2, 7, 2, 10.0),
    Sketcher.Constraint("DistanceY", 9, 1, 9, 2, 43.75264),
    Sketcher.Constraint("DistanceY", -1, 1, 5, 2, 105.467699),
    Sketcher.Constraint("DistanceX", 0, 2, 3, 2, 37.890898),
    Sketcher.Constraint("Distance", 1, 50.933179),
    Sketcher.Constraint("Distance", 2, 51.643549),
    Sketcher.Constraint("DistanceY", 4, 1, 4, 2, 46.447096),
])
pocket3 = doc.addObject("PartDesign::Pocket", "Pocket002")
body.addObject(pocket3)
pocket3.Profile = sketch6
pocket3.Length = 2

# Sketch on XZ plane
sketch7 = doc.addObject("Sketcher::SketchObject", "Sketch006")
body.addObject(sketch7)
sketch7.AttachmentSupport = (doc.XZ_Plane, [""])
sketch7.MapMode = "FlatFace"
sketch7.addGeometry([
    Part.LineSegment(V(-86, -38, 0), V(-76, -56, 0)),  # 0
    Part.LineSegment(V(-76, -56, 0), V(-72, -53, 0)),  # 1
    Part.LineSegment(V(-72, -53, 0), V(-82, -36, 0)),  # 2
    Part.LineSegment(V(-82, -36, 0), V(-86, -38, 0)),  # 3
    Part.LineSegment(V(-86, 38, 0), V(-82, 36, 0)),  # 4
    Part.LineSegment(V(-82, 36, 0), V(-72, 53, 0)),  # 5
    Part.LineSegment(V(-72, 53, 0), V(-76, 56, 0)),  # 6
    Part.LineSegment(V(-76, 56, 0), V(-86, 38, 0)),  # 7
    Part.LineSegment(V(-10, 94, 0), V(-10, 89, 0)),  # 8
    Part.LineSegment(V(-10, 89, 0), V(10, 89, 0)),  # 9
    Part.LineSegment(V(10, 89, 0), V(10, 94, 0)),  # 10
    Part.LineSegment(V(10, 94, 0), V(-10, 94, 0)),  # 11
    Part.LineSegment(V(76, 56, 0), V(72, 53, 0)),  # 12
    Part.LineSegment(V(72, 53, 0), V(82, 36, 0)),  # 13
    Part.LineSegment(V(82, 36, 0), V(86, 38, 0)),  # 14
    Part.LineSegment(V(86, 38, 0), V(76, 56, 0)),  # 15
    Part.LineSegment(V(86, -38, 0), V(82, -36, 0)),  # 16
    Part.LineSegment(V(82, -36, 0), V(72, -53, 0)),  # 17
    Part.LineSegment(V(72, -53, 0), V(76, -56, 0)),  # 18
    Part.LineSegment(V(76, -56, 0), V(86, -38, 0)),  # 19
    Part.LineSegment(V(10, -94, 0), V(10, -89, 0)),  # 20
    Part.LineSegment(V(10, -89, 0), V(-10, -89, 0)),  # 21
    Part.LineSegment(V(-10, -89, 0), V(-10, -94, 0)),  # 22
    Part.LineSegment(V(-10, -94, 0), V(10, -94, 0)),  # 23
], False)
sketch7.addConstraint([
    Sketcher.Constraint("Coincident", 0, 2, 1, 1),
    Sketcher.Constraint("Coincident", 1, 2, 2, 1),
    Sketcher.Constraint("Coincident", 2, 2, 3, 1),
    Sketcher.Constraint("Coincident", 3, 2, 0, 1),
    Sketcher.Constraint("Coincident", 4, 2, 5, 1),
    Sketcher.Constraint("Coincident", 5, 2, 6, 1),
    Sketcher.Constraint("Coincident", 6, 2, 7, 1),
    Sketcher.Constraint("Coincident", 7, 2, 4, 1),
    Sketcher.Constraint("Coincident", 8, 2, 9, 1),
    Sketcher.Constraint("Coincident", 9, 2, 10, 1),
    Sketcher.Constraint("Coincident", 10, 2, 11, 1),
    Sketcher.Constraint("Coincident", 11, 2, 8, 1),
    Sketcher.Constraint("Coincident", 12, 2, 13, 1),
    Sketcher.Constraint("Coincident", 13, 2, 14, 1),
    Sketcher.Constraint("Coincident", 14, 2, 15, 1),
    Sketcher.Constraint("Coincident", 15, 2, 12, 1),
    Sketcher.Constraint("Coincident", 16, 2, 17, 1),
    Sketcher.Constraint("Coincident", 17, 2, 18, 1),
    Sketcher.Constraint("Coincident", 18, 2, 19, 1),
    Sketcher.Constraint("Coincident", 19, 2, 16, 1),
    Sketcher.Constraint("Coincident", 20, 2, 21, 1),
    Sketcher.Constraint("Coincident", 21, 2, 22, 1),
    Sketcher.Constraint("Coincident", 22, 2, 23, 1),
    Sketcher.Constraint("Coincident", 23, 2, 20, 1),
    Sketcher.Constraint("Vertical", 8),
    Sketcher.Constraint("Horizontal", 9),
    Sketcher.Constraint("Vertical", 10),
    Sketcher.Constraint("Horizontal", 11),
    Sketcher.Constraint("Vertical", 20),
    Sketcher.Constraint("Horizontal", 21),
    Sketcher.Constraint("Vertical", 22),
    Sketcher.Constraint("Horizontal", 23),
    Sketcher.Constraint("Symmetric", 1, 2, 12, 2, -1, 1),
    Sketcher.Constraint("Symmetric", 2, 2, 13, 2, -1, 1),
    Sketcher.Constraint("Symmetric", 3, 2, 14, 2, -1, 1),
    Sketcher.Constraint("Symmetric", 0, 2, 15, 2, -1, 1),
    Sketcher.Constraint("Symmetric", 4, 2, 16, 2, -1, 1),
    Sketcher.Constraint("Symmetric", 5, 2, 17, 2, -1, 1),
    Sketcher.Constraint("Symmetric", 6, 2, 18, 2, -1, 1),
    Sketcher.Constraint("Symmetric", 7, 2, 19, 2, -1, 1),
    Sketcher.Constraint("Symmetric", 8, 2, 20, 2, -1, 1),
    Sketcher.Constraint("Symmetric", 10, 2, 22, 2, -1, 1),
    Sketcher.Constraint("Symmetric", 5, 2, 12, 2, -2),
    Sketcher.Constraint("Symmetric", 4, 2, 13, 2, -2),
    Sketcher.Constraint("Symmetric", 7, 2, 14, 2, -2),
    Sketcher.Constraint("Symmetric", 6, 2, 15, 2, -2),
    Sketcher.Constraint("Perpendicular", 0, 1),
    Sketcher.Constraint("Perpendicular", 1, 2),
    Sketcher.Constraint("Perpendicular", 2, 3),
    Sketcher.Constraint("Vertical", 10, 2, 20, 2),
    Sketcher.Constraint("DistanceX", 9, 1, 9, 2, 20.0),
    Sketcher.Constraint("DistanceY", 8, 2, 8, 1, 5.0),
    Sketcher.Constraint("Angle", 0, Q("-60 deg")),
    Sketcher.Constraint("Distance", 0, 20.0),
    Sketcher.Constraint("Distance", 1, 5.0),
    Sketcher.Constraint("DistanceX", 5, 2, 12, 2, 143.75),
    Sketcher.Constraint("DistanceY", 1, 2, 5, 2, 106.088112),
    Sketcher.Constraint("DistanceY", 2, 2, 8, 2, 124.491152),
])
pad4 = doc.addObject("PartDesign::Pad", "Pad003")
body.addObject(pad4)
pad4.Profile = sketch7
pad4.Length = 2
pad4.Reversed = True

# Sketch on XZ plane
sketch8 = doc.addObject("Sketcher::SketchObject", "Sketch007")
body.addObject(sketch8)
sketch8.AttachmentSupport = (doc.XZ_Plane, [""])
sketch8.MapMode = "FlatFace"
sketch8.AttachmentOffset = App.Placement(V(0, 0, -2), App.Rotation())
sketch8.addGeometry([
    Part.LineSegment(V(-18, -54, 0), V(-26, -41, 0)),  # 0
    Part.LineSegment(V(-26, -41, 0), V(-15, -34, 0)),  # 1
    Part.LineSegment(V(-15, -34, 0), V(-10, -43, 0)),  # 2
    Part.LineSegment(V(-10, -43, 0), V(-10, -50, 0)),  # 3
    Part.LineSegment(V(-10, -50, 0), V(-18, -54, 0)),  # 4
    Part.LineSegment(V(42, -13, 0), V(37, -4, 0)),  # 5
    Part.LineSegment(V(37, -4, 0), V(48, 2, 0)),  # 6
    Part.LineSegment(V(48, 2, 0), V(56, -11, 0)),  # 7
    Part.LineSegment(V(56, -11, 0), V(48, -16, 0)),  # 8
    Part.LineSegment(V(48, -16, 0), V(42, -13, 0)),  # 9
    Part.LineSegment(V(26, 41, 0), V(15, 34, 0)),  # 10
    Part.LineSegment(V(15, 34, 0), V(10, 43, 0)),  # 11
    Part.LineSegment(V(10, 43, 0), V(10, 50, 0)),  # 12
    Part.LineSegment(V(10, 50, 0), V(18, 54, 0)),  # 13
    Part.LineSegment(V(18, 54, 0), V(26, 41, 0)),  # 14
    Part.LineSegment(V(-37, 4, 0), V(-48, -2, 0)),  # 15
    Part.LineSegment(V(-48, -2, 0), V(-56, 11, 0)),  # 16
    Part.LineSegment(V(-56, 11, 0), V(-48, 16, 0)),  # 17
    Part.LineSegment(V(-48, 16, 0), V(-42, 13, 0)),  # 18
    Part.LineSegment(V(-42, 13, 0), V(-37, 4, 0)),  # 19
], False)
sketch8.addConstraint([
    Sketcher.Constraint("Coincident", 0, 2, 1, 1),
    Sketcher.Constraint("Coincident", 1, 2, 2, 1),
    Sketcher.Constraint("Coincident", 2, 2, 3, 1),
    Sketcher.Constraint("Coincident", 3, 2, 4, 1),
    Sketcher.Constraint("Coincident", 4, 2, 0, 1),
    Sketcher.Constraint("Coincident", 5, 2, 6, 1),
    Sketcher.Constraint("Coincident", 6, 2, 7, 1),
    Sketcher.Constraint("Coincident", 7, 2, 8, 1),
    Sketcher.Constraint("Coincident", 8, 2, 9, 1),
    Sketcher.Constraint("Coincident", 9, 2, 5, 1),
    Sketcher.Constraint("Coincident", 10, 2, 11, 1),
    Sketcher.Constraint("Coincident", 11, 2, 12, 1),
    Sketcher.Constraint("Coincident", 12, 2, 13, 1),
    Sketcher.Constraint("Coincident", 13, 2, 14, 1),
    Sketcher.Constraint("Coincident", 14, 2, 10, 1),
    Sketcher.Constraint("Coincident", 15, 2, 16, 1),
    Sketcher.Constraint("Coincident", 16, 2, 17, 1),
    Sketcher.Constraint("Coincident", 17, 2, 18, 1),
    Sketcher.Constraint("Coincident", 18, 2, 19, 1),
    Sketcher.Constraint("Coincident", 19, 2, 15, 1),
    Sketcher.Constraint("Vertical", 3),
    Sketcher.Constraint("Vertical", 12),
    Sketcher.Constraint("Symmetric", 1, 2, 10, 2, -1, 1),
    Sketcher.Constraint("Symmetric", 2, 2, 11, 2, -1, 1),
    Sketcher.Constraint("Symmetric", 4, 2, 13, 2, -1, 1),
    Sketcher.Constraint("Symmetric", 0, 2, 14, 2, -1, 1),
    Sketcher.Constraint("Symmetric", 6, 2, 15, 2, -1, 1),
    Sketcher.Constraint("Symmetric", 7, 2, 16, 2, -1, 1),
    Sketcher.Constraint("Symmetric", 8, 2, 17, 2, -1, 1),
    Sketcher.Constraint("Symmetric", 9, 2, 18, 2, -1, 1),
    Sketcher.Constraint("Symmetric", 5, 2, 19, 2, -1, 1),
    Sketcher.Constraint("Perpendicular", 0, 1),
    Sketcher.Constraint("Perpendicular", 1, 2),
    Sketcher.Constraint("Perpendicular", 2, 4),
    Sketcher.Constraint("Perpendicular", 4, 5),
    Sketcher.Constraint("Perpendicular", 5, 6),
    Sketcher.Constraint("Perpendicular", 6, 7),
    Sketcher.Constraint("Perpendicular", 7, 8),
    Sketcher.Constraint("Perpendicular", 11, 13),
    Sketcher.Constraint("Equal", 2, 5),
    Sketcher.Constraint("Equal", 1, 6),
    Sketcher.Constraint("Equal", 0, 7),
    Sketcher.Constraint("Equal", 4, 8),
    Sketcher.Constraint("Angle", 0, Q("120 deg")),
    Sketcher.Constraint("Distance", 0, 16.0),
    Sketcher.Constraint("Distance", 1, 13.0),
    Sketcher.Constraint("DistanceX", 2, 2, -1, 1, 10.0),
    Sketcher.Constraint("DistanceX", -1, 1, 8, 2, 48.0),
    Sketcher.Constraint("DistanceY", 1, 2, 5, 2, 30.0),
    Sketcher.Constraint("DistanceY", 3, 2, 3, 1, 6.972631),
    Sketcher.Constraint("DistanceY", 8, 2, 11, 2, 58.845299),
])
pad5 = doc.addObject("PartDesign::Pad", "Pad004")
body.addObject(pad5)
pad5.Profile = sketch8
pad5.Length = 2

# Sketch on XZ plane
sketch9 = doc.addObject("Sketcher::SketchObject", "Sketch008")
body.addObject(sketch9)
sketch9.AttachmentSupport = (doc.XZ_Plane, [""])
sketch9.MapMode = "FlatFace"
sketch9.AttachmentOffset = App.Placement(V(0, 0, -2), App.Rotation())
sketch9.addGeometry([
    Part.LineSegment(V(-14.8, -52.4, 0), V(-18.2, -54.4, 0)),  # 0
    Part.LineSegment(V(-18.2, -54.4, 0), V(-26.2, -40.6, 0)),  # 1
    Part.LineSegment(V(-26.2, -40.6, 0), V(-22.8, -38.6, 0)),  # 2
    Part.LineSegment(V(-22.8, -38.6, 0), V(-14.8, -52.4, 0)),  # 3
    Part.LineSegment(V(-44.8, -0.4, 0), V(-48.2, -2.4, 0)),  # 4
    Part.LineSegment(V(-48.2, -2.4, 0), V(-56.2, 11.4, 0)),  # 5
    Part.LineSegment(V(-56.2, 11.4, 0), V(-52.8, 13.4, 0)),  # 6
    Part.LineSegment(V(-52.8, 13.4, 0), V(-44.8, -0.4, 0)),  # 7
    Part.LineSegment(V(14.8, 52.4, 0), V(18.2, 54.4, 0)),  # 8
    Part.LineSegment(V(18.2, 54.4, 0), V(26.2, 40.6, 0)),  # 9
    Part.LineSegment(V(26.2, 40.6, 0), V(22.8, 38.6, 0)),  # 10
    Part.LineSegment(V(22.8, 38.6, 0), V(14.8, 52.4, 0)),  # 11
    Part.LineSegment(V(44.8, 0.4, 0), V(48.2, 2.4, 0)),  # 12
    Part.LineSegment(V(48.2, 2.4, 0), V(56.2, -11.4, 0)),  # 13
    Part.LineSegment(V(56.2, -11.4, 0), V(52.8, -13.4, 0)),  # 14
    Part.LineSegment(V(52.8, -13.4, 0), V(44.8, 0.4, 0)),  # 15
], False)
sketch9.addConstraint([
    Sketcher.Constraint("Coincident", 0, 2, 1, 1),
    Sketcher.Constraint("Coincident", 1, 2, 2, 1),
    Sketcher.Constraint("Coincident", 2, 2, 3, 1),
    Sketcher.Constraint("Coincident", 3, 2, 0, 1),
    Sketcher.Constraint("Coincident", 4, 2, 5, 1),
    Sketcher.Constraint("Coincident", 5, 2, 6, 1),
    Sketcher.Constraint("Coincident", 6, 2, 7, 1),
    Sketcher.Constraint("Coincident", 7, 2, 4, 1),
    Sketcher.Constraint("Coincident", 8, 2, 9, 1),
    Sketcher.Constraint("Coincident", 9, 2, 10, 1),
    Sketcher.Constraint("Coincident", 10, 2, 11, 1),
    Sketcher.Constraint("Coincident", 11, 2, 8, 1),
    Sketcher.Constraint("Coincident", 12, 2, 13, 1),
    Sketcher.Constraint("Coincident", 13, 2, 14, 1),
    Sketcher.Constraint("Coincident", 14, 2, 15, 1),
    Sketcher.Constraint("Coincident", 15, 2, 12, 1),
    Sketcher.Constraint("Symmetric", 0, 2, 8, 2, -1, 1),
    Sketcher.Constraint("Symmetric", 1, 2, 9, 2, -1, 1),
    Sketcher.Constraint("Symmetric", 2, 2, 10, 2, -1, 1),
    Sketcher.Constraint("Symmetric", 3, 2, 11, 2, -1, 1),
    Sketcher.Constraint("Symmetric", 4, 2, 12, 2, -1, 1),
    Sketcher.Constraint("Symmetric", 5, 2, 13, 2, -1, 1),
    Sketcher.Constraint("Symmetric", 6, 2, 14, 2, -1, 1),
    Sketcher.Constraint("Symmetric", 7, 2, 15, 2, -1, 1),
    Sketcher.Constraint("Perpendicular", 0, 1),
    Sketcher.Constraint("Perpendicular", 1, 2),
    Sketcher.Constraint("Perpendicular", 2, 3),
    Sketcher.Constraint("Perpendicular", 3, 4),
    Sketcher.Constraint("Perpendicular", 4, 5),
    Sketcher.Constraint("Perpendicular", 5, 6),
    Sketcher.Constraint("Perpendicular", 6, 7),
    Sketcher.Constraint("Equal", 2, 4),
    Sketcher.Constraint("Equal", 3, 5),
    Sketcher.Constraint("Angle", 0, Q("-150 deg")),
    Sketcher.Constraint("Distance", 0, 4.0),
    Sketcher.Constraint("Distance", 1, 16.0),
    Sketcher.Constraint("DistanceX", 4, 2, 1, 2, 22.0),
    Sketcher.Constraint("DistanceY", 6, 2, 8, 2, 41.0),
    Sketcher.Constraint("DistanceY", 1, 2, -1, 1, 40.552559),
    Sketcher.Constraint("DistanceX", 2, 2, -1, 1, 22.774991),
])
pocket4 = doc.addObject("PartDesign::Pocket", "Pocket003")
body.addObject(pocket4)
pocket4.Profile = sketch9
pocket4.Length = 2
pocket4.Reversed = True

doc.recompute()
